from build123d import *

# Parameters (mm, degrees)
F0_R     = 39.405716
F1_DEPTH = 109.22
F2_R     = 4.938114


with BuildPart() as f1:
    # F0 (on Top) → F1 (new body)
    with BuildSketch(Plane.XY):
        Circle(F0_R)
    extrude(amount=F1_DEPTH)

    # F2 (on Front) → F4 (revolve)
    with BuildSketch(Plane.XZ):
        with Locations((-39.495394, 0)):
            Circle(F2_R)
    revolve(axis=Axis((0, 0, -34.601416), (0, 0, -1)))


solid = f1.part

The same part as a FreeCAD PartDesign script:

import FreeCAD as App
import Part
import Sketcher
Q = App.Units.Quantity

doc = App.newDocument("Part")
body = doc.addObject("PartDesign::Body", "Body")

# Sketch on XY plane
sketch1 = body.newObject("Sketcher::SketchObject", "Sketch")
sketch1.AttachmentSupport = (doc.getObject("XY_Plane"), [""])
sketch1.MapMode = "FlatFace"
sketch1.addGeometry(Part.Circle(App.Vector(0, 0, 0), App.Vector(0, 0, 1), 39.405716), False)
sketch1.addConstraint([
    Sketcher.Constraint("Coincident", 0, 3, -1, 1),
    Sketcher.Constraint("Diameter", 0, 78.811432),
])
pad1 = body.newObject("PartDesign::Pad", "Pad")
pad1.Profile = sketch1
pad1.Length = Q("4.3 in")

# Sketch on XZ plane
sketch2 = body.newObject("Sketcher::SketchObject", "Sketch001")
sketch2.AttachmentSupport = (doc.getObject("XZ_Plane"), [""])
sketch2.MapMode = "FlatFace"
sketch2.addGeometry(Part.Circle(App.Vector(-39.495394, 0, 0), App.Vector(0, 0, 1), 4.938114), False)
sketch2.addConstraint([
    Sketcher.Constraint("PointOnObject", 0, 3, -1),
    Sketcher.Constraint("Diameter", 0, 9.876228),
    Sketcher.Constraint("DistanceX", 0, 3, -1, 1, 39.495394),
])
revolution = body.newObject("PartDesign::Revolution", "Revolution")
revolution.Profile = sketch2
revolution.ReferenceAxis = (sketch2, ["V_Axis"])
revolution.Angle = 360

doc.recompute()
